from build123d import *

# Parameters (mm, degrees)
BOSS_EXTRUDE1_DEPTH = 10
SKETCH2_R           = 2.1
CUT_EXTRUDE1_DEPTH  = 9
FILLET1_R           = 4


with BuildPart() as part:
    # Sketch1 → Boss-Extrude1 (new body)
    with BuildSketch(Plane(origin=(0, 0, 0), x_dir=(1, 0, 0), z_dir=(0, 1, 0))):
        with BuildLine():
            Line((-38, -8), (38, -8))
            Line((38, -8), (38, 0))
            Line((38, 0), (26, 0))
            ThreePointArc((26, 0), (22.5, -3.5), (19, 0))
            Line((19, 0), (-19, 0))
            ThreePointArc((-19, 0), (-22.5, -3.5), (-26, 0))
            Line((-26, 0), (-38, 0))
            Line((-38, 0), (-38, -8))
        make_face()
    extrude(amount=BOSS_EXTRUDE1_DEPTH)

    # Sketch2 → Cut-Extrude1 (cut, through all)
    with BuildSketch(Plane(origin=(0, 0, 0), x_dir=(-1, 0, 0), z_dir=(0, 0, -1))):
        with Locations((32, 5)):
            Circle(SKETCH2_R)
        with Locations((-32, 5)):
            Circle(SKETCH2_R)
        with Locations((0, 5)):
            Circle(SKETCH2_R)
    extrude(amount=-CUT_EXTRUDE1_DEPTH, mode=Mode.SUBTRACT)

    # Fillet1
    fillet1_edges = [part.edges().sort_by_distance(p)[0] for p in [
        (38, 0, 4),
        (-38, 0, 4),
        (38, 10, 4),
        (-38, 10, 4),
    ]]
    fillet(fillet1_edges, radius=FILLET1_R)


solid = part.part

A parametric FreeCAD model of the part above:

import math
import FreeCAD as App
import Part
import Sketcher
Q = App.Units.Quantity


def edges_at(feature, points):
    """Names of the edges that pass closest to the given points."""
    edges = feature.Shape.Edges
    near = lambda p: min(range(len(edges)), key=lambda i: edges[i].distToShape(Part.Vertex(*p))[0])
    return sorted({f"Edge{near(p) + 1}" for p in points})

doc = App.newDocument("Part")
body = doc.addObject("PartDesign::Body", "Body")

sketch1 = doc.addObject("Sketcher::SketchObject", "Sketch")
body.addObject(sketch1)
sketch1.AttachmentSupport = (doc.XZ_Plane, [""])
sketch1.MapMode = "FlatFace"
sketch1.addGeometry([
    Part.LineSegment(App.Vector(-38, 8, 0), App.Vector(38, 8, 0)),
    Part.LineSegment(App.Vector(38, 8, 0), App.Vector(38, 0, 0)),
    Part.LineSegment(App.Vector(38, 0, 0), App.Vector(26, 0, 0)),
    Part.ArcOfCircle(Part.Circle(App.Vector(22.5, 0, 0), App.Vector(0, 0, 1), 3.5), math.radians(0), math.radians(180)),
    Part.LineSegment(App.Vector(19, 0, 0), App.Vector(-19, 0, 0)),
    Part.ArcOfCircle(Part.Circle(App.Vector(-22.5, 0, 0), App.Vector(0, 0, 1), 3.5), math.radians(0), math.radians(180)),
    Part.LineSegment(App.Vector(-26, 0, 0), App.Vector(-38, 0, 0)),
    Part.LineSegment(App.Vector(-38, 0, 0), App.Vector(-38, 8, 0)),
], False)
sketch1.addConstraint([
    Sketcher.Constraint("Coincident", 0, 2, 1, 1),
    Sketcher.Constraint("Coincident", 1, 2, 2, 1),
    Sketcher.Constraint("Coincident", 2, 2, 3, 1),
    Sketcher.Constraint("Coincident", 3, 2, 4, 1),
    Sketcher.Constraint("Coincident", 4, 2, 5, 1),
    Sketcher.Constraint("Coincident", 5, 2, 6, 1),
    Sketcher.Constraint("Coincident", 6, 2, 7, 1),
    Sketcher.Constraint("Coincident", 7, 2, 0, 1),
    Sketcher.Constraint("Horizontal", 0),
    Sketcher.Constraint("Vertical", 1),
    Sketcher.Constraint("Horizontal", 2),
    Sketcher.Constraint("Horizontal", 4),
    Sketcher.Constraint("Horizontal", 6),
    Sketcher.Constraint("Vertical", 7),
    Sketcher.Constraint("Equal", 3, 5),
    Sketcher.Constraint("Symmetric", 3, 3, 5, 3, -1, 1),
    Sketcher.Constraint("Symmetric", 1, 2, 6, 2, -1, 1),
    Sketcher.Constraint("PointOnObject", 3, 3, -1),
    Sketcher.Constraint("PointOnObject", 1, 2, -1),
    Sketcher.Constraint("PointOnObject", 3, 2, -1),
    Sketcher.Constraint("Radius", 3, Q("3.5 mm")),
    Sketcher.Constraint("DistanceX", 0, 1, 0, 2, Q("76 mm")),
    Sketcher.Constraint("DistanceX", 2, 2, 2, 1, Q("12 mm")),
    Sketcher.Constraint("DistanceY", 1, 2, 1, 1, Q("8 mm")),
])
pad1 = doc.addObject("PartDesign::Pad", "Pad")
body.addObject(pad1)
pad1.Profile = sketch1
pad1.Length = 10
pad1.Reversed = True

sketch2 = doc.addObject("Sketcher::SketchObject", "Sketch001")
body.addObject(sketch2)
sketch2.AttachmentSupport = (doc.XY_Plane, [""])
sketch2.MapMode = "FlatFace"
sketch2.addGeometry([
    Part.Circle(App.Vector(-32, 5, 0), App.Vector(0, 0, 1), 2.1),
    Part.Circle(App.Vector(32, 5, 0), App.Vector(0, 0, 1), 2.1),
    Part.Circle(App.Vector(0, 5, 0), App.Vector(0, 0, 1), 2.1),
], False)
sketch2.addConstraint([
    Sketcher.Constraint("Equal", 0, 1),
    Sketcher.Constraint("Equal", 1, 2),
    Sketcher.Constraint("Symmetric", 0, 3, 1, 3, -2),
    Sketcher.Constraint("PointOnObject", 2, 3, -2),
    Sketcher.Constraint("Horizontal", 1, 3, 2, 3),
    Sketcher.Constraint("Diameter", 0, Q("4.2 mm")),
    Sketcher.Constraint("DistanceX", 0, 3, -1, 1, Q("32 mm")),
    Sketcher.Constraint("DistanceY", -1, 1, 0, 3, Q("5 mm")),
])
pocket1 = doc.addObject("PartDesign::Pocket", "Pocket")
body.addObject(pocket1)
pocket1.Profile = sketch2
pocket1.Type = "ThroughAll"
pocket1.Reversed = True
doc.recompute()

fillet = doc.addObject("PartDesign::Fillet", "Fillet")
body.addObject(fillet)
fillet.Base = (pocket1, edges_at(pocket1, [
    (38, 0, 4),
    (-38, 0, 4),
    (38, 10, 4),
    (-38, 10, 4),
]))
fillet.Radius = 4

doc.recompute()
